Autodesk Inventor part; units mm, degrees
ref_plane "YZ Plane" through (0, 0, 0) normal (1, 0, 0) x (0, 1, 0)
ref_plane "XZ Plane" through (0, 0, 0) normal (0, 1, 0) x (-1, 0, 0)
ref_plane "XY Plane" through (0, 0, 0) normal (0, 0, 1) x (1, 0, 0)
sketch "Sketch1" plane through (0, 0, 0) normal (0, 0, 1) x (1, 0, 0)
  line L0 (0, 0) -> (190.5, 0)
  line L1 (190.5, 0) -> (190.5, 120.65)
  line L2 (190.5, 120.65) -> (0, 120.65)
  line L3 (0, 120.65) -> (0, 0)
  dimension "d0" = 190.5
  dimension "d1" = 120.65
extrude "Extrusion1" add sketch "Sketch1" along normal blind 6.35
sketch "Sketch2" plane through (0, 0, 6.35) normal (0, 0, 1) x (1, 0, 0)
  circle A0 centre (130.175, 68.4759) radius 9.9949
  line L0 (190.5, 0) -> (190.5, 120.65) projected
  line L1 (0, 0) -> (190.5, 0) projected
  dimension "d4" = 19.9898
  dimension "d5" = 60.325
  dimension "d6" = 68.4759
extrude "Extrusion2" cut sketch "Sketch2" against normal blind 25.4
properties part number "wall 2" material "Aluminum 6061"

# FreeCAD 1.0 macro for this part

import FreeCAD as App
import Part
import Sketcher

V = App.Vector
Q = App.Units.Quantity


def add_polygon(sketch, points):
    """Adds a closed chain of lines whose ends are joined by coincident constraints."""
    first, n = sketch.GeometryCount, len(points)
    for a, b in zip(points, points[1:] + points[:1]):
        sketch.addGeometry(Part.LineSegment(App.Vector(*a, 0), App.Vector(*b, 0)), False)
    for i in range(n):
        sketch.addConstraint(Sketcher.Constraint("Coincident", first + i, 2, first + (i + 1) % n, 1))

doc = App.newDocument("Part")
body = doc.addObject("PartDesign::Body", "Body")

# Sketch on XY plane
sketch1 = body.newObject("Sketcher::SketchObject", "Sketch")
sketch1.AttachmentSupport = (doc.getObject("XY_Plane"), [""])
sketch1.MapMode = "FlatFace"
add_polygon(sketch1, [(0, 120.65), (0, 0), (190.5, 0), (190.5, 120.65)])  # lines 0-3
sketch1.addConstraint(Sketcher.Constraint("Vertical", 0))
sketch1.addConstraint(Sketcher.Constraint("Horizontal", 1))
sketch1.addConstraint(Sketcher.Constraint("Vertical", 2))
sketch1.addConstraint(Sketcher.Constraint("Horizontal", 3))
sketch1.addConstraint(Sketcher.Constraint("Coincident", 0, 2, -1, 1))
sketch1.addConstraint(Sketcher.Constraint("DistanceX", 1, 1, 1, 2, Q("7.5 in")))
sketch1.addConstraint(Sketcher.Constraint("DistanceY", 0, 2, 0, 1, Q("4.75 in")))
pad1 = body.newObject("PartDesign::Pad", "Pad")
pad1.Profile = sketch1
pad1.Length = Q("0.25 in")

# Sketch on XY plane
sketch2 = body.newObject("Sketcher::SketchObject", "Sketch001")
sketch2.AttachmentSupport = (doc.getObject("XY_Plane"), [""])
sketch2.MapMode = "FlatFace"
sketch2.AttachmentOffset = App.Placement(V(0, 0, 0.25 * 25.4), App.Rotation())
sketch2.addGeometry(Part.Circle(V(130.175, 68.4759, 0), V(0, 0, 1), 9.9949), False)
sketch2.addConstraint(Sketcher.Constraint("Diameter", 0, Q("0.787 in")))
sketch2.addConstraint(Sketcher.Constraint("DistanceY", -1, 1, 0, 3, Q("2.6959 in")))
sketch2.addConstraint(Sketcher.Constraint("DistanceX", -1, 1, 0, 3, Q("5.125 in")))
pocket1 = body.newObject("PartDesign::Pocket", "Pocket")
pocket1.Profile = sketch2
pocket1.Length = Q("1 in")

doc.recompute()
